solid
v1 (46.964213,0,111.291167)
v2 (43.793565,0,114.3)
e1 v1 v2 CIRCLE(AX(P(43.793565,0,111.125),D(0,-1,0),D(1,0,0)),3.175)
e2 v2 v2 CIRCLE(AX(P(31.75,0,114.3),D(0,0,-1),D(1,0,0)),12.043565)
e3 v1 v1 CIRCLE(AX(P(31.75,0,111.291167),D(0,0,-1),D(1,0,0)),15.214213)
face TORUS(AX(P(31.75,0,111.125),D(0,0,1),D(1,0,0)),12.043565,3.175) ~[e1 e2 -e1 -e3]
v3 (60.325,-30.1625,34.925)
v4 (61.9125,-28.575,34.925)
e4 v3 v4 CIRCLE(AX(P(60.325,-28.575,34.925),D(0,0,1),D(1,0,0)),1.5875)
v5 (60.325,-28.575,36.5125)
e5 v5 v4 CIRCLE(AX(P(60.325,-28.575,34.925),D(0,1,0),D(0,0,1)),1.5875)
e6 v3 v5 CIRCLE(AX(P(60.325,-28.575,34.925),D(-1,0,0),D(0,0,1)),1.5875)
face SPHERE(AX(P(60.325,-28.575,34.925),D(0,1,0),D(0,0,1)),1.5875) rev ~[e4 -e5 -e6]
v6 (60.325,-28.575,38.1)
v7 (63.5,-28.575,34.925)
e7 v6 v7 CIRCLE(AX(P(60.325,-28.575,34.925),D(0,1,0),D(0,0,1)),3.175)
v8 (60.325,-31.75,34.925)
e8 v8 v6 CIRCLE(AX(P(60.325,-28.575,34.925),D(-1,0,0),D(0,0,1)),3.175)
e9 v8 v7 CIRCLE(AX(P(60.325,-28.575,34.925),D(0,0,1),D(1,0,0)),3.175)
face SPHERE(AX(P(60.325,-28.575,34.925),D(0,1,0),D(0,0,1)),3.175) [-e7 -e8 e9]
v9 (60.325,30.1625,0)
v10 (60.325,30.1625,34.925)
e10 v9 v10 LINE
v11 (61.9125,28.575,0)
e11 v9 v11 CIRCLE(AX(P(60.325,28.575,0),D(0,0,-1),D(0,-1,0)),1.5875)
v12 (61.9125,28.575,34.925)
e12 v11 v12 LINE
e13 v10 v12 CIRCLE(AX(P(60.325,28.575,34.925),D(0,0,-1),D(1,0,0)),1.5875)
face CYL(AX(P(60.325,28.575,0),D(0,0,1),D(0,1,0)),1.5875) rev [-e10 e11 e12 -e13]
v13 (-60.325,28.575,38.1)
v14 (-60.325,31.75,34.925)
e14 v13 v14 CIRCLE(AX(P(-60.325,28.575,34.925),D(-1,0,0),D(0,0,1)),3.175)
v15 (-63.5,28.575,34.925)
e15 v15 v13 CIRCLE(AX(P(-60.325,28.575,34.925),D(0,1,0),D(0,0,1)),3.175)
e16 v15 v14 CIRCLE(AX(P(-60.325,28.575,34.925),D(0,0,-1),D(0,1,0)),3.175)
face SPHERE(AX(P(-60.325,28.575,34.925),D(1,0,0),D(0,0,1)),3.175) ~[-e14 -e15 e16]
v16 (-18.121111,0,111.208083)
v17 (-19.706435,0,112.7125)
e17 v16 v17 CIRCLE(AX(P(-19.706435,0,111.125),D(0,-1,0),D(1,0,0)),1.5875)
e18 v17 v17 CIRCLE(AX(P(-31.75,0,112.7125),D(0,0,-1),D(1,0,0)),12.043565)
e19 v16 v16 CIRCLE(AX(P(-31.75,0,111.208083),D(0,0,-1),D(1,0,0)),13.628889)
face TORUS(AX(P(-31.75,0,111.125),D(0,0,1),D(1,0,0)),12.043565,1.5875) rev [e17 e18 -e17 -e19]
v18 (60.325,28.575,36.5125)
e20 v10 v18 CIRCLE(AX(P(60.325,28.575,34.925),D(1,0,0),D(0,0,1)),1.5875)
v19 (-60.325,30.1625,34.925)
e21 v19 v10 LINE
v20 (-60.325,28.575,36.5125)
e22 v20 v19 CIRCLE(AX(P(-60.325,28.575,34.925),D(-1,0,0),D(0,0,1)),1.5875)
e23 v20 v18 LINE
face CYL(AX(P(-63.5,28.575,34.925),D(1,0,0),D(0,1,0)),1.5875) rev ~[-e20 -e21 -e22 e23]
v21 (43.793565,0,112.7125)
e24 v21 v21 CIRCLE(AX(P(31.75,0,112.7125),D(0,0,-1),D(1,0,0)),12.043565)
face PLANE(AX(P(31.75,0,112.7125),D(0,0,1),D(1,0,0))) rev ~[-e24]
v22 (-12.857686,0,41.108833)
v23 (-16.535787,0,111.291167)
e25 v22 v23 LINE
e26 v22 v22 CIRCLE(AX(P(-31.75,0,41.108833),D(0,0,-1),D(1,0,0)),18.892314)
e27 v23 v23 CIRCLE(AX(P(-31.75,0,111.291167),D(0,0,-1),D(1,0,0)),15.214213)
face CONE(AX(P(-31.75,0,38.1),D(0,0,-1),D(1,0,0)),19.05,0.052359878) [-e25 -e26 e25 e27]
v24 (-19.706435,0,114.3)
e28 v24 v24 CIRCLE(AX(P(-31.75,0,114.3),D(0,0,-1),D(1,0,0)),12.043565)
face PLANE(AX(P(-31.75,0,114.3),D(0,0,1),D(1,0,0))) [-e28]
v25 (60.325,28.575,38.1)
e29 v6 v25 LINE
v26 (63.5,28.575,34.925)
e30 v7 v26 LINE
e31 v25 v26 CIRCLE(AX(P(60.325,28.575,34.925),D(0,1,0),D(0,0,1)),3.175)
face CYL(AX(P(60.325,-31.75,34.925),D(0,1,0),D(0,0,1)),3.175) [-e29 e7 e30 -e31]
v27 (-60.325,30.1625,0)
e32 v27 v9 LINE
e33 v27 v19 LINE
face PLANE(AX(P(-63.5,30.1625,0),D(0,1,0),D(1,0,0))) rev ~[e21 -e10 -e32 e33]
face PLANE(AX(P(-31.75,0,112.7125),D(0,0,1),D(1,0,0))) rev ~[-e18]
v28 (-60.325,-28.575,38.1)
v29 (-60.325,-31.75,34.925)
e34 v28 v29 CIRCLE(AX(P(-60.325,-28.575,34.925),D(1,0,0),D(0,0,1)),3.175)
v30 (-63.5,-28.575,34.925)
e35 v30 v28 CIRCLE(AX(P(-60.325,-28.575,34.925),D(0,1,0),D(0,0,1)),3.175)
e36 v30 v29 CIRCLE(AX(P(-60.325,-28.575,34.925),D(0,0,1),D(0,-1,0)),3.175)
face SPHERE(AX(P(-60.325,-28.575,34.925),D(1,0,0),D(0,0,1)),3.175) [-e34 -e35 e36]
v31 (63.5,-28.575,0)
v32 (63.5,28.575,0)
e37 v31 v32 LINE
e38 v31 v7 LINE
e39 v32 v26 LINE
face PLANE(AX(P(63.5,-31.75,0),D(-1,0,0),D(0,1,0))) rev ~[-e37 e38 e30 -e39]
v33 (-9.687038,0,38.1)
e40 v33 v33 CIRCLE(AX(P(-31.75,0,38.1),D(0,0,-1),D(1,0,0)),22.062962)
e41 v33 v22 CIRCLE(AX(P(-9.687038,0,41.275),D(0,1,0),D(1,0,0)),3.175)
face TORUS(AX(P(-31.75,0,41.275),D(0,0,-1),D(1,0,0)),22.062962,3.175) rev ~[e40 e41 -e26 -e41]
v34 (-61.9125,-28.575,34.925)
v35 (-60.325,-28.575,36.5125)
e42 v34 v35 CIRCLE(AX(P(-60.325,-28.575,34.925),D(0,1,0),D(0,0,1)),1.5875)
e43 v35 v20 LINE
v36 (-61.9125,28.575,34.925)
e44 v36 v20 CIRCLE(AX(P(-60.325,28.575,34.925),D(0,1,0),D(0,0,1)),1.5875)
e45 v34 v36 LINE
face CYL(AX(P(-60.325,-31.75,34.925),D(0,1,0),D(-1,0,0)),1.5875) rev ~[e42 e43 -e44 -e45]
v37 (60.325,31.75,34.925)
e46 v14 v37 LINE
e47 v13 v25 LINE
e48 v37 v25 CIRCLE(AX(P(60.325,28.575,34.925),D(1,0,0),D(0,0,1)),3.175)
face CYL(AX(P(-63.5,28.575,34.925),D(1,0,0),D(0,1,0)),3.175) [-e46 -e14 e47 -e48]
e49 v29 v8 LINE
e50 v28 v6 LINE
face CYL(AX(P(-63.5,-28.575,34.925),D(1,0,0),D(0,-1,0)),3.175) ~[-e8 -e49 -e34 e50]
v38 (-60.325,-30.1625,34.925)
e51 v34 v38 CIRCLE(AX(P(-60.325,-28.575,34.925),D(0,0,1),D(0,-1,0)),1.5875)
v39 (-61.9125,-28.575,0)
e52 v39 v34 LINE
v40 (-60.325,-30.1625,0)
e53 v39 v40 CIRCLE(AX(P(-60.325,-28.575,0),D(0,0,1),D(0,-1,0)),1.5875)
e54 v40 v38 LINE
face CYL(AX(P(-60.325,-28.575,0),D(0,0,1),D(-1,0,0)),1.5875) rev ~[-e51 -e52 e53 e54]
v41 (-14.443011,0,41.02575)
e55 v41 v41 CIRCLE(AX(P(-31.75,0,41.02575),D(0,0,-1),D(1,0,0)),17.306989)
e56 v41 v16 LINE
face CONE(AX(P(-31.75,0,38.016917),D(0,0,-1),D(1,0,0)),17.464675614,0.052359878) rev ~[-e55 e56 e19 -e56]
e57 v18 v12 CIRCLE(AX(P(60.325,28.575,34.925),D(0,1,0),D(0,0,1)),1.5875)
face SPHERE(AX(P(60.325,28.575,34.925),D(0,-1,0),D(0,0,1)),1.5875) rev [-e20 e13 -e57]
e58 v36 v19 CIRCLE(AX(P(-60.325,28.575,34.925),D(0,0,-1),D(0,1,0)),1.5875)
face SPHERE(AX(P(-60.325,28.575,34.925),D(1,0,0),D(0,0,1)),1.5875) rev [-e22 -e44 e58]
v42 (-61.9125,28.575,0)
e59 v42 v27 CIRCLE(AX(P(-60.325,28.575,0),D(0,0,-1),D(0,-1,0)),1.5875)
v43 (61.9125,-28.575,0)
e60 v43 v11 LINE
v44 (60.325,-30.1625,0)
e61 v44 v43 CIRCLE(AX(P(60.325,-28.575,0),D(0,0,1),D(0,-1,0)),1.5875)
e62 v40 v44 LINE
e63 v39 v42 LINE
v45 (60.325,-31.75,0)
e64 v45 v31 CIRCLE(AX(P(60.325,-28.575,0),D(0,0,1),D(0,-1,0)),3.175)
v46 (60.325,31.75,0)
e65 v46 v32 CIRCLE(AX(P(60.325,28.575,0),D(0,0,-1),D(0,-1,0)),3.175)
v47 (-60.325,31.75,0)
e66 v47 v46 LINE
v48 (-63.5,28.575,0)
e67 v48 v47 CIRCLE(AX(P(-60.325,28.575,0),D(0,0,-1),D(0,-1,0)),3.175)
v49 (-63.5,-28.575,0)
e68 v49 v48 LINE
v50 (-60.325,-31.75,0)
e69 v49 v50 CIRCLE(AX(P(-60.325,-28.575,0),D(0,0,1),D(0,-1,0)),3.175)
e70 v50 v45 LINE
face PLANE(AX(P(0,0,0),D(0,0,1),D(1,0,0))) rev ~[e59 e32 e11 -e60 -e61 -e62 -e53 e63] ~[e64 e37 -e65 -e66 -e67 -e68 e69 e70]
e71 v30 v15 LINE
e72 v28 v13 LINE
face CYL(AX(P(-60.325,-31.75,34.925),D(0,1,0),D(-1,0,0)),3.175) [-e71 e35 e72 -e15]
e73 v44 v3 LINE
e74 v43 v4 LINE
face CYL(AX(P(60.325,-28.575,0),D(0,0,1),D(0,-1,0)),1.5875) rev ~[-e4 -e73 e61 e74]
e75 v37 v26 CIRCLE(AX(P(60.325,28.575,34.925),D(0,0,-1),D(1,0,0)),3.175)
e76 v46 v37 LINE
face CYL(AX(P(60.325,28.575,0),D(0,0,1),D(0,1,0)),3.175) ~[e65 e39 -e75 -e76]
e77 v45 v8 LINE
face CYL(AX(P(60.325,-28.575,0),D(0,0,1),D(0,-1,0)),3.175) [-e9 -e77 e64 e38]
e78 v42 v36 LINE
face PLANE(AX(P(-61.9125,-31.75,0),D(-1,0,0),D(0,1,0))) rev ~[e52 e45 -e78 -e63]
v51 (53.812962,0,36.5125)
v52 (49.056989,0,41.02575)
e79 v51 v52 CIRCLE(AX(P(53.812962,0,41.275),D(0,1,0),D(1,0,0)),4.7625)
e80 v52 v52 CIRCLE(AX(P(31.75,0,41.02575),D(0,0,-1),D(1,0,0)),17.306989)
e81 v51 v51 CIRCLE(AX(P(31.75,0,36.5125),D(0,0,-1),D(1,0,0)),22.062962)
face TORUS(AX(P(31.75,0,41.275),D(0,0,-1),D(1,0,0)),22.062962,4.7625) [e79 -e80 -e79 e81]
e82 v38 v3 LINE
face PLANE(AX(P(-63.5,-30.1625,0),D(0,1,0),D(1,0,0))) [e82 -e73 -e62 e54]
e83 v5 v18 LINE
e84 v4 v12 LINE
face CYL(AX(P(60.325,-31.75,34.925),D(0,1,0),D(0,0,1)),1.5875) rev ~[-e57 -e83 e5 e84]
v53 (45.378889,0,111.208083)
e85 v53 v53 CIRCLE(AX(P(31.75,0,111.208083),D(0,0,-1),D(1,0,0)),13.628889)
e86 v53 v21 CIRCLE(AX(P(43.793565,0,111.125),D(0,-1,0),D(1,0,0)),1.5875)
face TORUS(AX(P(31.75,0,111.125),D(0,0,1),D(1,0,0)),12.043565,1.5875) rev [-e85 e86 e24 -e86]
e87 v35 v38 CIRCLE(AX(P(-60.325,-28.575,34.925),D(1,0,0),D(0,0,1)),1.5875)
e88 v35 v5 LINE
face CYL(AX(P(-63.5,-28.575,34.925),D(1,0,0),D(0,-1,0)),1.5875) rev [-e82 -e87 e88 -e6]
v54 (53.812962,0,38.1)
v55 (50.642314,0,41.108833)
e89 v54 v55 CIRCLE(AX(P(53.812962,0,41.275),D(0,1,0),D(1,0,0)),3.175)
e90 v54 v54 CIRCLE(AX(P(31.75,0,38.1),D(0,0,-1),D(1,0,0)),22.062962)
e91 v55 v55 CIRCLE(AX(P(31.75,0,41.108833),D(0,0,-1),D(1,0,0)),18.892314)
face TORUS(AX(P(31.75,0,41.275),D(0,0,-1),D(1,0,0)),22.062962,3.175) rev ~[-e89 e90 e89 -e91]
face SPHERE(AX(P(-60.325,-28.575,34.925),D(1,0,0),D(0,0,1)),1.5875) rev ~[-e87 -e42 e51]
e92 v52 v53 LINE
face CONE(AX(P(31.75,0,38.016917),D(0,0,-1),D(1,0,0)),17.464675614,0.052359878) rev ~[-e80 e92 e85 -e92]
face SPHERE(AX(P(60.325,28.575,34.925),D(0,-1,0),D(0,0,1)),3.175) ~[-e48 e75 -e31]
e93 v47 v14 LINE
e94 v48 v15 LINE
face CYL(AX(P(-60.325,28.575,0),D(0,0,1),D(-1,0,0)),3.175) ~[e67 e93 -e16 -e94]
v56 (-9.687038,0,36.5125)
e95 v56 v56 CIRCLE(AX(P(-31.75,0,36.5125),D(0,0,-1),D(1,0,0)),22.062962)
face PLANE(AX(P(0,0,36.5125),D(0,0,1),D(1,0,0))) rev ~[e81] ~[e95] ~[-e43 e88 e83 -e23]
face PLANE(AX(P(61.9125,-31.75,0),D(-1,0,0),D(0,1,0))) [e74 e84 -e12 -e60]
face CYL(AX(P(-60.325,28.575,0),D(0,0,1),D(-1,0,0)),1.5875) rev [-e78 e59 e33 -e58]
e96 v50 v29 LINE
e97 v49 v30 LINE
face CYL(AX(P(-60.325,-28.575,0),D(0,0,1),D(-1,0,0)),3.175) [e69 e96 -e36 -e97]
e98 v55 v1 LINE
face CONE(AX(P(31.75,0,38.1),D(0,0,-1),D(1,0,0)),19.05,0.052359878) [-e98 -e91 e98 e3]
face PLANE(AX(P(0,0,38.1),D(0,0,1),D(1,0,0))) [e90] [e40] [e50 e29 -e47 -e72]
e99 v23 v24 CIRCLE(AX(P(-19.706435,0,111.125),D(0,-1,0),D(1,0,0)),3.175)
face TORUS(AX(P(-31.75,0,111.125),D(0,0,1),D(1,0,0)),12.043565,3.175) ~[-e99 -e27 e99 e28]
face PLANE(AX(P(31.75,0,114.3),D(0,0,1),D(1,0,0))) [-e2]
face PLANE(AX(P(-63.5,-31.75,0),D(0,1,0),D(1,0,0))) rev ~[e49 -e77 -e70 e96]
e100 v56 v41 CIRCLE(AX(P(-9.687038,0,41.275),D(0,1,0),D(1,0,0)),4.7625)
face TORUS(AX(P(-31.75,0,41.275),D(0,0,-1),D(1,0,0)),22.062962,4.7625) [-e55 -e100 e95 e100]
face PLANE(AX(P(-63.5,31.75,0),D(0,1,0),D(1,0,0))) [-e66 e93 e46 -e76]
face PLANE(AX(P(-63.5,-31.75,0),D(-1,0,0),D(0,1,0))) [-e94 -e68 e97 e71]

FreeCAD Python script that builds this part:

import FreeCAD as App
import Part
import Sketcher
Q = App.Units.Quantity


def edges_at(feature, points):
    """Names of the edges that pass closest to the given points."""
    edges = feature.Shape.Edges
    near = lambda p: min(range(len(edges)), key=lambda i: edges[i].distToShape(Part.Vertex(*p))[0])
    return sorted({f"Edge{near(p) + 1}" for p in points})


def faces_at(feature, points):
    """Names of the faces that lie closest to the given points."""
    faces = feature.Shape.Faces
    near = lambda p: min(range(len(faces)), key=lambda i: faces[i].distToShape(Part.Vertex(*p))[0])
    return sorted({f"Face{near(p) + 1}" for p in points})

doc = App.newDocument("Part")
body = doc.addObject("PartDesign::Body", "Body")

sketch1 = body.newObject("Sketcher::SketchObject", "Sketch")
sketch1.AttachmentSupport = (doc.getObject("XY_Plane"), [""])
sketch1.MapMode = "FlatFace"
sketch1.addGeometry([
    Part.LineSegment(App.Vector(-63.5, 31.75, 0), App.Vector(-63.5, -31.75, 0)),
    Part.LineSegment(App.Vector(-63.5, -31.75, 0), App.Vector(63.5, -31.75, 0)),
    Part.LineSegment(App.Vector(63.5, -31.75, 0), App.Vector(63.5, 31.75, 0)),
    Part.LineSegment(App.Vector(63.5, 31.75, 0), App.Vector(-63.5, 31.75, 0)),
], False)
sketch1.addConstraint([
    Sketcher.Constraint("Coincident", 0, 2, 1, 1),
    Sketcher.Constraint("Coincident", 1, 2, 2, 1),
    Sketcher.Constraint("Coincident", 2, 2, 3, 1),
    Sketcher.Constraint("Coincident", 3, 2, 0, 1),
    Sketcher.Constraint("Vertical", 0),
    Sketcher.Constraint("Horizontal", 1),
    Sketcher.Constraint("Vertical", 2),
    Sketcher.Constraint("Horizontal", 3),
    Sketcher.Constraint("Symmetric", 0, 2, 2, 2, -1, 1),
    Sketcher.Constraint("DistanceX", 1, 1, 1, 2, Q("5 in")),
    Sketcher.Constraint("DistanceY", 0, 2, 0, 1, Q("2.5 in")),
])
pad1 = body.newObject("PartDesign::Pad", "Pad")
pad1.Profile = sketch1
pad1.Length = Q("1.5 in")

sketch2 = body.newObject("Sketcher::SketchObject", "Sketch001")
sketch2.AttachmentSupport = (doc.getObject("XY_Plane"), [""])
sketch2.MapMode = "FlatFace"
sketch2.AttachmentOffset = App.Placement(App.Vector(0, 0, 1.5 * 25.4), App.Rotation())
sketch2.addGeometry([
    Part.Circle(App.Vector(-31.75, 0, 0), App.Vector(0, 0, 1), 19.05),
    Part.Circle(App.Vector(31.75, 0, 0), App.Vector(0, 0, 1), 19.05),
], False)
sketch2.addConstraint([
    Sketcher.Constraint("Equal", 0, 1),
    Sketcher.Constraint("Symmetric", 0, 3, 1, 3, -1, 1),
    Sketcher.Constraint("PointOnObject", 0, 3, -1),
    Sketcher.Constraint("Diameter", 0, Q("1.5 in")),
    Sketcher.Constraint("DistanceX", 0, 3, 1, 3, Q("2.5 in")),
])
pad2 = body.newObject("PartDesign::Pad", "Pad001")
pad2.Profile = sketch2
pad2.Length = Q("3 in")
pad2.TaperAngle = -3
doc.recompute()

fillet = body.newObject("PartDesign::Fillet", "Fillet")
fillet.Base = (pad2, edges_at(pad2, [
    (12.7, 0, 38.1),
    (48.803, 0, 76.2),
    (16.693, 0, 114.3),
    (-50.8, 0, 38.1),
    (-14.697, 0, 76.2),
    (-46.807, 0, 114.3),
    (63.5, 0, 38.1),
    (0, -31.75, 38.1),
    (0, 31.75, 38.1),
    (-63.5, 0, 38.1),
    (-63.5, -31.75, 19.05),
    (-63.5, 31.75, 19.05),
    (63.5, 31.75, 19.05),
    (63.5, -31.75, 19.05),
]))
fillet.Radius = Q("0.125 in")
doc.recompute()

thickness = body.newObject("PartDesign::Thickness", "Thickness")
thickness.Base = (fillet, faces_at(fillet, [(0, 0, 0)]))
thickness.Value = Q("0.0625 in")
thickness.Reversed = True
thickness.Join = "Arc"

doc.recompute()
